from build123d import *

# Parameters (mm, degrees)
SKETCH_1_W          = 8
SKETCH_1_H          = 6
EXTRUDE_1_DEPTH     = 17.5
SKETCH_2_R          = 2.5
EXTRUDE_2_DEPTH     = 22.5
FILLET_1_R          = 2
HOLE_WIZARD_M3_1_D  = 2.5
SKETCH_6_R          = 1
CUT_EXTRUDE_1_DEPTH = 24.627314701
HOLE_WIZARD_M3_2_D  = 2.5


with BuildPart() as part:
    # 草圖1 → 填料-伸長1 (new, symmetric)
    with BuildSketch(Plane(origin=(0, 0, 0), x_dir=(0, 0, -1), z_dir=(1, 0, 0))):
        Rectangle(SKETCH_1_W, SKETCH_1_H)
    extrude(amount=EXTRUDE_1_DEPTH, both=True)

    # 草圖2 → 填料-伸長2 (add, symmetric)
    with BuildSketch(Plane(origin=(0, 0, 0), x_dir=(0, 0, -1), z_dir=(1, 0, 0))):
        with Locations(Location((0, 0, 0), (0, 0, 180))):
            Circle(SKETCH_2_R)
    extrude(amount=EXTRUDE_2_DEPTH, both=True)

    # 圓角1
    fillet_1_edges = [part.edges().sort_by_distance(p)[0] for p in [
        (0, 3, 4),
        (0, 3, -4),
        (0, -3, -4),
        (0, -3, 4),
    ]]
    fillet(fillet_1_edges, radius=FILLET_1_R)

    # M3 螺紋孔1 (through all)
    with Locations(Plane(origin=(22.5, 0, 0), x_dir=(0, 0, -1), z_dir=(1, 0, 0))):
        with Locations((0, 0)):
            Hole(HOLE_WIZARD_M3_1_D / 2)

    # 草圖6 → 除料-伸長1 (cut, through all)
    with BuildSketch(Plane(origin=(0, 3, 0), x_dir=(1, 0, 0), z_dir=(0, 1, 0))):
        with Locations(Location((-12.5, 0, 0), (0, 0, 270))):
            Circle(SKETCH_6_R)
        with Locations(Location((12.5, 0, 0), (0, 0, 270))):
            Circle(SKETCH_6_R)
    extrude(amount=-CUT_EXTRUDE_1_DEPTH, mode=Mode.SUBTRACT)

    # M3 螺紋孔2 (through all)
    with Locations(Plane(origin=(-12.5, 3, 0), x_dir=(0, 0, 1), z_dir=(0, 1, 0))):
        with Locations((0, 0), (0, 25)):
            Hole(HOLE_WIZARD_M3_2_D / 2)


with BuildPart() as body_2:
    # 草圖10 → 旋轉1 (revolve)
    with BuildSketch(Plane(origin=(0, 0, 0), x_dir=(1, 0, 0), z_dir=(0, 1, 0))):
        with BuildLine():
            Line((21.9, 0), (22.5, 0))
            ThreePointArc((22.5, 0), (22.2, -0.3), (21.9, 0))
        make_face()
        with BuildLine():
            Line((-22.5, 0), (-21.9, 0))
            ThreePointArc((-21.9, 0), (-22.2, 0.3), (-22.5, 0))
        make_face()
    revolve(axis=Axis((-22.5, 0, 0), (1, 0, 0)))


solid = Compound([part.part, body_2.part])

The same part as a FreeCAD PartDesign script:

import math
import FreeCAD as App
import Part
import Sketcher

V = App.Vector


def edges_at(feature, points):
    """Names of the edges that pass closest to the given points."""
    edges = feature.Shape.Edges
    near = lambda p: min(range(len(edges)), key=lambda i: edges[i].distToShape(Part.Vertex(*p))[0])
    return sorted({f"Edge{near(p) + 1}" for p in points})


def add_polygon(sketch, points):
    """Adds a closed chain of lines whose ends are joined by coincident constraints."""
    first, n = sketch.GeometryCount, len(points)
    for a, b in zip(points, points[1:] + points[:1]):
        sketch.addGeometry(Part.LineSegment(App.Vector(*a, 0), App.Vector(*b, 0)), False)
    for i in range(n):
        sketch.addConstraint(Sketcher.Constraint("Coincident", first + i, 2, first + (i + 1) % n, 1))

doc = App.newDocument("Part")
body = doc.addObject("PartDesign::Body", "Body")

# Sketch on YZ plane
sketch1 = body.newObject("Sketcher::SketchObject", "Sketch")
sketch1.AttachmentSupport = (doc.getObject("YZ_Plane"), [""])
sketch1.MapMode = "FlatFace"
add_polygon(sketch1, [(3, 4), (-3, 4), (-3, -4), (3, -4)])  # lines 0-3
sketch1.addConstraint([
    Sketcher.Constraint("Horizontal", 0),
    Sketcher.Constraint("Vertical", 1),
    Sketcher.Constraint("Horizontal", 2),
    Sketcher.Constraint("Vertical", 3),
    Sketcher.Constraint("Symmetric", 0, 2, 2, 2, -1, 1),
    Sketcher.Constraint("DistanceX", 0, 2, 0, 1, 6.0),
    Sketcher.Constraint("DistanceY", 1, 2, 1, 1, 8.0),
])
pad1 = body.newObject("PartDesign::Pad", "Pad")
pad1.Profile = sketch1
pad1.Length = 35
pad1.Midplane = True

# Sketch on YZ plane
sketch2 = body.newObject("Sketcher::SketchObject", "Sketch001")
sketch2.AttachmentSupport = (doc.getObject("YZ_Plane"), [""])
sketch2.MapMode = "FlatFace"
sketch2.addGeometry(Part.Circle(V(0, 0, 0), V(0, 0, 1), 2.5), False)
sketch2.addConstraint([
    Sketcher.Constraint("Coincident", 0, 3, -1, 1),
    Sketcher.Constraint("Diameter", 0, 5.0),
])
pad2 = body.newObject("PartDesign::Pad", "Pad001")
pad2.Profile = sketch2
pad2.Length = 45
pad2.Midplane = True
doc.recompute()

fillet = body.newObject("PartDesign::Fillet", "Fillet")
fillet.Base = (pad2, edges_at(pad2, [
    (0, 3, 4),
    (0, 3, -4),
    (0, -3, -4),
    (0, -3, 4),
]))
fillet.Radius = 2

# Sketch on YZ plane
sketch3 = body.newObject("Sketcher::SketchObject", "Sketch002")
sketch3.AttachmentSupport = (doc.getObject("YZ_Plane"), [""])
sketch3.MapMode = "FlatFace"
sketch3.AttachmentOffset = App.Placement(V(0, 0, 22.5), App.Rotation())
sketch3.addGeometry(Part.Circle(V(0, 0, 0), V(0, 0, 1), 1.2), False)
sketch3.addConstraint([
    Sketcher.Constraint("Coincident", 0, 3, -1, 1),
    Sketcher.Constraint("Diameter", 0, 2.5),
])
doc.recompute()
hole = body.newObject("PartDesign::Hole", "Hole")
hole.Profile = sketch3
hole.ThreadType = "None"
hole.Diameter = 2.5
hole.DepthType = "ThroughAll"

# Sketch on XZ plane
sketch4 = body.newObject("Sketcher::SketchObject", "Sketch003")
sketch4.AttachmentSupport = (doc.getObject("XZ_Plane"), [""])
sketch4.MapMode = "FlatFace"
sketch4.AttachmentOffset = App.Placement(V(0, 0, -3), App.Rotation())
sketch4.addGeometry([
    Part.Circle(V(-12.5, 0, 0), V(0, 0, 1), 1),
    Part.Circle(V(12.5, 0, 0), V(0, 0, 1), 1),
], False)
sketch4.addConstraint([
    Sketcher.Constraint("Equal", 0, 1),
    Sketcher.Constraint("Symmetric", 0, 3, 1, 3, -1, 1),
    Sketcher.Constraint("PointOnObject", 0, 3, -1),
    Sketcher.Constraint("Diameter", 0, 2.0),
    Sketcher.Constraint("DistanceX", 0, 3, 1, 3, 25.0),
])
pocket1 = body.newObject("PartDesign::Pocket", "Pocket")
pocket1.Profile = sketch4
pocket1.Type = "ThroughAll"
pocket1.Reversed = True

# Sketch on XZ plane
sketch5 = body.newObject("Sketcher::SketchObject", "Sketch004")
sketch5.AttachmentSupport = (doc.getObject("XZ_Plane"), [""])
sketch5.MapMode = "FlatFace"
sketch5.AttachmentOffset = App.Placement(V(0, 0, -3), App.Rotation())
sketch5.addGeometry([
    Part.Circle(V(-12.5, 0, 0), V(0, 0, 1), 1.2),
    Part.Circle(V(12.5, 0, 0), V(0, 0, 1), 1.2),
], False)
sketch5.addConstraint([
    Sketcher.Constraint("Equal", 0, 1),
    Sketcher.Constraint("Symmetric", 0, 3, 1, 3, -1, 1),
    Sketcher.Constraint("PointOnObject", 0, 3, -1),
    Sketcher.Constraint("Diameter", 0, 2.5),
    Sketcher.Constraint("DistanceX", 0, 3, 1, 3, 25.0),
])
doc.recompute()
hole2 = body.newObject("PartDesign::Hole", "Hole001")
hole2.Profile = sketch5
hole2.ThreadType = "None"
hole2.Diameter = 2.5
hole2.DepthType = "ThroughAll"
hole2.Reversed = True
body2 = doc.addObject("PartDesign::Body", "Body001")
body2.AllowCompound = True

# Sketch on XZ plane
sketch6 = body2.newObject("Sketcher::SketchObject", "Sketch005")
sketch6.AttachmentSupport = (doc.getObject("XZ_Plane001"), [""])
sketch6.MapMode = "FlatFace"
sketch6.addGeometry([
    Part.LineSegment(V(22.5, 0, 0), V(21.9, 0, 0)),
    Part.ArcOfCircle(Part.Circle(V(22.2, 0, 0), V(0, 0, 1), 0.3), math.radians(0), math.radians(180)),
    Part.LineSegment(V(-22.5, 0, 0), V(-21.9, 0, 0)),
    Part.ArcOfCircle(Part.Circle(V(-22.2, 0, 0), V(0, 0, 1), 0.3), math.radians(180), math.radians(360)),
], False)
sketch6.addConstraint([
    Sketcher.Constraint("Coincident", 0, 1, 1, 1),
    Sketcher.Constraint("Coincident", 1, 2, 0, 2),
    Sketcher.Constraint("Coincident", 2, 1, 3, 1),
    Sketcher.Constraint("Coincident", 3, 2, 2, 2),
    Sketcher.Constraint("Horizontal", 0),
    Sketcher.Constraint("Horizontal", 2),
    Sketcher.Constraint("Equal", 1, 3),
    Sketcher.Constraint("Symmetric", 1, 3, 3, 3, -1, 1),
    Sketcher.Constraint("PointOnObject", 1, 3, -1),
    Sketcher.Constraint("PointOnObject", 0, 1, -1),
    Sketcher.Constraint("PointOnObject", 2, 1, -1),
    Sketcher.Constraint("Radius", 1, 0.3),
    Sketcher.Constraint("DistanceX", 2, 1, 0, 1, 45.0),
])
revolution = body2.newObject("PartDesign::Revolution", "Revolution")
revolution.Profile = sketch6
revolution.ReferenceAxis = (sketch6, ["H_Axis"])
revolution.Angle = 360

doc.recompute()
